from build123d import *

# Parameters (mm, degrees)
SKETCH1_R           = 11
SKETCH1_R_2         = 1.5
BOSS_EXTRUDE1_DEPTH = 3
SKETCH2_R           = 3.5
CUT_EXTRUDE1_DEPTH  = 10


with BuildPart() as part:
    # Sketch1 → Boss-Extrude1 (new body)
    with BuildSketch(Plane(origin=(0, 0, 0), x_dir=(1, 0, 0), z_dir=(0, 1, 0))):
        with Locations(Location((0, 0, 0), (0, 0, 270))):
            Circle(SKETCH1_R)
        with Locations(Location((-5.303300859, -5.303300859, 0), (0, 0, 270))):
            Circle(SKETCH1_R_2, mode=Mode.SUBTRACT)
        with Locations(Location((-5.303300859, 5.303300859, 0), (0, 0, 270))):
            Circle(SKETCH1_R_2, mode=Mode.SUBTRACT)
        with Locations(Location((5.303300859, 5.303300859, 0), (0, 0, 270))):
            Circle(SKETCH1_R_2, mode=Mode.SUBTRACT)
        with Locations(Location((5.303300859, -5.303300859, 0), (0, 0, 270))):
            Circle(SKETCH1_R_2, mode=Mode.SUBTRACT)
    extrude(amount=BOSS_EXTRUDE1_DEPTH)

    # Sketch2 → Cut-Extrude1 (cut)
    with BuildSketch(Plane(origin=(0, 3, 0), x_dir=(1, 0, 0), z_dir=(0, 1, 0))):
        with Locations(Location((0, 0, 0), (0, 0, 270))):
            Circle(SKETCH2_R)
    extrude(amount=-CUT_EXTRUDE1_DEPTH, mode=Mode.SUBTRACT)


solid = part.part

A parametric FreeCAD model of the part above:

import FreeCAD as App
import Part
import Sketcher
from FreeCAD import Vector
Q = App.Units.Quantity

doc = App.newDocument("Part")
body = doc.addObject("PartDesign::Body", "Body")

# Sketch on XZ plane
sketch1 = body.newObject("Sketcher::SketchObject", "Sketch")
sketch1.AttachmentSupport = (doc.getObject("XZ_Plane"), [""])
sketch1.MapMode = "FlatFace"
sketch1.addGeometry([
    Part.Circle(Vector(0, 0, 0), Vector(0, 0, 1), 11),  # 0
    Part.Circle(Vector(-5.3, -5.3, 0), Vector(0, 0, 1), 1.5),  # 1
    Part.Circle(Vector(-5.3, 5.3, 0), Vector(0, 0, 1), 1.5),  # 2
    Part.Circle(Vector(5.3, -5.3, 0), Vector(0, 0, 1), 1.5),  # 3
    Part.Circle(Vector(5.3, 5.3, 0), Vector(0, 0, 1), 1.5),  # 4
], False)
sketch1.addConstraint([
    Sketcher.Constraint("Coincident", 0, 3, -1, 1),
    Sketcher.Constraint("Equal", 1, 2),
    Sketcher.Constraint("Equal", 2, 3),
    Sketcher.Constraint("Equal", 3, 4),
    Sketcher.Constraint("Symmetric", 2, 3, 3, 3, -1, 1),
    Sketcher.Constraint("Symmetric", 1, 3, 4, 3, -1, 1),
    Sketcher.Constraint("Symmetric", 1, 3, 3, 3, -2),
    Sketcher.Constraint("Diameter", 0, Q("22 mm")),
    Sketcher.Constraint("Diameter", 1, Q("3 mm")),
    Sketcher.Constraint("DistanceX", 1, 3, -1, 1, Q("5.303301 mm")),
    Sketcher.Constraint("DistanceY", 1, 3, -1, 1, Q("5.303301 mm")),
])
pad1 = body.newObject("PartDesign::Pad", "Pad")
pad1.Profile = sketch1
pad1.Length = 3
pad1.Reversed = True

# Sketch on XZ plane
sketch2 = body.newObject("Sketcher::SketchObject", "Sketch001")
sketch2.AttachmentSupport = (doc.getObject("XZ_Plane"), [""])
sketch2.MapMode = "FlatFace"
sketch2.AttachmentOffset = App.Placement(Vector(0, 0, -3), App.Rotation())
sketch2.addGeometry(Part.Circle(Vector(0, 0, 0), Vector(0, 0, 1), 3.5), False)
sketch2.addConstraint([
    Sketcher.Constraint("Coincident", 0, 3, -1, 1),
    Sketcher.Constraint("Diameter", 0, Q("7 mm")),
])
pocket1 = body.newObject("PartDesign::Pocket", "Pocket")
pocket1.Profile = sketch2
pocket1.Length = 10
pocket1.Reversed = True

doc.recompute()
